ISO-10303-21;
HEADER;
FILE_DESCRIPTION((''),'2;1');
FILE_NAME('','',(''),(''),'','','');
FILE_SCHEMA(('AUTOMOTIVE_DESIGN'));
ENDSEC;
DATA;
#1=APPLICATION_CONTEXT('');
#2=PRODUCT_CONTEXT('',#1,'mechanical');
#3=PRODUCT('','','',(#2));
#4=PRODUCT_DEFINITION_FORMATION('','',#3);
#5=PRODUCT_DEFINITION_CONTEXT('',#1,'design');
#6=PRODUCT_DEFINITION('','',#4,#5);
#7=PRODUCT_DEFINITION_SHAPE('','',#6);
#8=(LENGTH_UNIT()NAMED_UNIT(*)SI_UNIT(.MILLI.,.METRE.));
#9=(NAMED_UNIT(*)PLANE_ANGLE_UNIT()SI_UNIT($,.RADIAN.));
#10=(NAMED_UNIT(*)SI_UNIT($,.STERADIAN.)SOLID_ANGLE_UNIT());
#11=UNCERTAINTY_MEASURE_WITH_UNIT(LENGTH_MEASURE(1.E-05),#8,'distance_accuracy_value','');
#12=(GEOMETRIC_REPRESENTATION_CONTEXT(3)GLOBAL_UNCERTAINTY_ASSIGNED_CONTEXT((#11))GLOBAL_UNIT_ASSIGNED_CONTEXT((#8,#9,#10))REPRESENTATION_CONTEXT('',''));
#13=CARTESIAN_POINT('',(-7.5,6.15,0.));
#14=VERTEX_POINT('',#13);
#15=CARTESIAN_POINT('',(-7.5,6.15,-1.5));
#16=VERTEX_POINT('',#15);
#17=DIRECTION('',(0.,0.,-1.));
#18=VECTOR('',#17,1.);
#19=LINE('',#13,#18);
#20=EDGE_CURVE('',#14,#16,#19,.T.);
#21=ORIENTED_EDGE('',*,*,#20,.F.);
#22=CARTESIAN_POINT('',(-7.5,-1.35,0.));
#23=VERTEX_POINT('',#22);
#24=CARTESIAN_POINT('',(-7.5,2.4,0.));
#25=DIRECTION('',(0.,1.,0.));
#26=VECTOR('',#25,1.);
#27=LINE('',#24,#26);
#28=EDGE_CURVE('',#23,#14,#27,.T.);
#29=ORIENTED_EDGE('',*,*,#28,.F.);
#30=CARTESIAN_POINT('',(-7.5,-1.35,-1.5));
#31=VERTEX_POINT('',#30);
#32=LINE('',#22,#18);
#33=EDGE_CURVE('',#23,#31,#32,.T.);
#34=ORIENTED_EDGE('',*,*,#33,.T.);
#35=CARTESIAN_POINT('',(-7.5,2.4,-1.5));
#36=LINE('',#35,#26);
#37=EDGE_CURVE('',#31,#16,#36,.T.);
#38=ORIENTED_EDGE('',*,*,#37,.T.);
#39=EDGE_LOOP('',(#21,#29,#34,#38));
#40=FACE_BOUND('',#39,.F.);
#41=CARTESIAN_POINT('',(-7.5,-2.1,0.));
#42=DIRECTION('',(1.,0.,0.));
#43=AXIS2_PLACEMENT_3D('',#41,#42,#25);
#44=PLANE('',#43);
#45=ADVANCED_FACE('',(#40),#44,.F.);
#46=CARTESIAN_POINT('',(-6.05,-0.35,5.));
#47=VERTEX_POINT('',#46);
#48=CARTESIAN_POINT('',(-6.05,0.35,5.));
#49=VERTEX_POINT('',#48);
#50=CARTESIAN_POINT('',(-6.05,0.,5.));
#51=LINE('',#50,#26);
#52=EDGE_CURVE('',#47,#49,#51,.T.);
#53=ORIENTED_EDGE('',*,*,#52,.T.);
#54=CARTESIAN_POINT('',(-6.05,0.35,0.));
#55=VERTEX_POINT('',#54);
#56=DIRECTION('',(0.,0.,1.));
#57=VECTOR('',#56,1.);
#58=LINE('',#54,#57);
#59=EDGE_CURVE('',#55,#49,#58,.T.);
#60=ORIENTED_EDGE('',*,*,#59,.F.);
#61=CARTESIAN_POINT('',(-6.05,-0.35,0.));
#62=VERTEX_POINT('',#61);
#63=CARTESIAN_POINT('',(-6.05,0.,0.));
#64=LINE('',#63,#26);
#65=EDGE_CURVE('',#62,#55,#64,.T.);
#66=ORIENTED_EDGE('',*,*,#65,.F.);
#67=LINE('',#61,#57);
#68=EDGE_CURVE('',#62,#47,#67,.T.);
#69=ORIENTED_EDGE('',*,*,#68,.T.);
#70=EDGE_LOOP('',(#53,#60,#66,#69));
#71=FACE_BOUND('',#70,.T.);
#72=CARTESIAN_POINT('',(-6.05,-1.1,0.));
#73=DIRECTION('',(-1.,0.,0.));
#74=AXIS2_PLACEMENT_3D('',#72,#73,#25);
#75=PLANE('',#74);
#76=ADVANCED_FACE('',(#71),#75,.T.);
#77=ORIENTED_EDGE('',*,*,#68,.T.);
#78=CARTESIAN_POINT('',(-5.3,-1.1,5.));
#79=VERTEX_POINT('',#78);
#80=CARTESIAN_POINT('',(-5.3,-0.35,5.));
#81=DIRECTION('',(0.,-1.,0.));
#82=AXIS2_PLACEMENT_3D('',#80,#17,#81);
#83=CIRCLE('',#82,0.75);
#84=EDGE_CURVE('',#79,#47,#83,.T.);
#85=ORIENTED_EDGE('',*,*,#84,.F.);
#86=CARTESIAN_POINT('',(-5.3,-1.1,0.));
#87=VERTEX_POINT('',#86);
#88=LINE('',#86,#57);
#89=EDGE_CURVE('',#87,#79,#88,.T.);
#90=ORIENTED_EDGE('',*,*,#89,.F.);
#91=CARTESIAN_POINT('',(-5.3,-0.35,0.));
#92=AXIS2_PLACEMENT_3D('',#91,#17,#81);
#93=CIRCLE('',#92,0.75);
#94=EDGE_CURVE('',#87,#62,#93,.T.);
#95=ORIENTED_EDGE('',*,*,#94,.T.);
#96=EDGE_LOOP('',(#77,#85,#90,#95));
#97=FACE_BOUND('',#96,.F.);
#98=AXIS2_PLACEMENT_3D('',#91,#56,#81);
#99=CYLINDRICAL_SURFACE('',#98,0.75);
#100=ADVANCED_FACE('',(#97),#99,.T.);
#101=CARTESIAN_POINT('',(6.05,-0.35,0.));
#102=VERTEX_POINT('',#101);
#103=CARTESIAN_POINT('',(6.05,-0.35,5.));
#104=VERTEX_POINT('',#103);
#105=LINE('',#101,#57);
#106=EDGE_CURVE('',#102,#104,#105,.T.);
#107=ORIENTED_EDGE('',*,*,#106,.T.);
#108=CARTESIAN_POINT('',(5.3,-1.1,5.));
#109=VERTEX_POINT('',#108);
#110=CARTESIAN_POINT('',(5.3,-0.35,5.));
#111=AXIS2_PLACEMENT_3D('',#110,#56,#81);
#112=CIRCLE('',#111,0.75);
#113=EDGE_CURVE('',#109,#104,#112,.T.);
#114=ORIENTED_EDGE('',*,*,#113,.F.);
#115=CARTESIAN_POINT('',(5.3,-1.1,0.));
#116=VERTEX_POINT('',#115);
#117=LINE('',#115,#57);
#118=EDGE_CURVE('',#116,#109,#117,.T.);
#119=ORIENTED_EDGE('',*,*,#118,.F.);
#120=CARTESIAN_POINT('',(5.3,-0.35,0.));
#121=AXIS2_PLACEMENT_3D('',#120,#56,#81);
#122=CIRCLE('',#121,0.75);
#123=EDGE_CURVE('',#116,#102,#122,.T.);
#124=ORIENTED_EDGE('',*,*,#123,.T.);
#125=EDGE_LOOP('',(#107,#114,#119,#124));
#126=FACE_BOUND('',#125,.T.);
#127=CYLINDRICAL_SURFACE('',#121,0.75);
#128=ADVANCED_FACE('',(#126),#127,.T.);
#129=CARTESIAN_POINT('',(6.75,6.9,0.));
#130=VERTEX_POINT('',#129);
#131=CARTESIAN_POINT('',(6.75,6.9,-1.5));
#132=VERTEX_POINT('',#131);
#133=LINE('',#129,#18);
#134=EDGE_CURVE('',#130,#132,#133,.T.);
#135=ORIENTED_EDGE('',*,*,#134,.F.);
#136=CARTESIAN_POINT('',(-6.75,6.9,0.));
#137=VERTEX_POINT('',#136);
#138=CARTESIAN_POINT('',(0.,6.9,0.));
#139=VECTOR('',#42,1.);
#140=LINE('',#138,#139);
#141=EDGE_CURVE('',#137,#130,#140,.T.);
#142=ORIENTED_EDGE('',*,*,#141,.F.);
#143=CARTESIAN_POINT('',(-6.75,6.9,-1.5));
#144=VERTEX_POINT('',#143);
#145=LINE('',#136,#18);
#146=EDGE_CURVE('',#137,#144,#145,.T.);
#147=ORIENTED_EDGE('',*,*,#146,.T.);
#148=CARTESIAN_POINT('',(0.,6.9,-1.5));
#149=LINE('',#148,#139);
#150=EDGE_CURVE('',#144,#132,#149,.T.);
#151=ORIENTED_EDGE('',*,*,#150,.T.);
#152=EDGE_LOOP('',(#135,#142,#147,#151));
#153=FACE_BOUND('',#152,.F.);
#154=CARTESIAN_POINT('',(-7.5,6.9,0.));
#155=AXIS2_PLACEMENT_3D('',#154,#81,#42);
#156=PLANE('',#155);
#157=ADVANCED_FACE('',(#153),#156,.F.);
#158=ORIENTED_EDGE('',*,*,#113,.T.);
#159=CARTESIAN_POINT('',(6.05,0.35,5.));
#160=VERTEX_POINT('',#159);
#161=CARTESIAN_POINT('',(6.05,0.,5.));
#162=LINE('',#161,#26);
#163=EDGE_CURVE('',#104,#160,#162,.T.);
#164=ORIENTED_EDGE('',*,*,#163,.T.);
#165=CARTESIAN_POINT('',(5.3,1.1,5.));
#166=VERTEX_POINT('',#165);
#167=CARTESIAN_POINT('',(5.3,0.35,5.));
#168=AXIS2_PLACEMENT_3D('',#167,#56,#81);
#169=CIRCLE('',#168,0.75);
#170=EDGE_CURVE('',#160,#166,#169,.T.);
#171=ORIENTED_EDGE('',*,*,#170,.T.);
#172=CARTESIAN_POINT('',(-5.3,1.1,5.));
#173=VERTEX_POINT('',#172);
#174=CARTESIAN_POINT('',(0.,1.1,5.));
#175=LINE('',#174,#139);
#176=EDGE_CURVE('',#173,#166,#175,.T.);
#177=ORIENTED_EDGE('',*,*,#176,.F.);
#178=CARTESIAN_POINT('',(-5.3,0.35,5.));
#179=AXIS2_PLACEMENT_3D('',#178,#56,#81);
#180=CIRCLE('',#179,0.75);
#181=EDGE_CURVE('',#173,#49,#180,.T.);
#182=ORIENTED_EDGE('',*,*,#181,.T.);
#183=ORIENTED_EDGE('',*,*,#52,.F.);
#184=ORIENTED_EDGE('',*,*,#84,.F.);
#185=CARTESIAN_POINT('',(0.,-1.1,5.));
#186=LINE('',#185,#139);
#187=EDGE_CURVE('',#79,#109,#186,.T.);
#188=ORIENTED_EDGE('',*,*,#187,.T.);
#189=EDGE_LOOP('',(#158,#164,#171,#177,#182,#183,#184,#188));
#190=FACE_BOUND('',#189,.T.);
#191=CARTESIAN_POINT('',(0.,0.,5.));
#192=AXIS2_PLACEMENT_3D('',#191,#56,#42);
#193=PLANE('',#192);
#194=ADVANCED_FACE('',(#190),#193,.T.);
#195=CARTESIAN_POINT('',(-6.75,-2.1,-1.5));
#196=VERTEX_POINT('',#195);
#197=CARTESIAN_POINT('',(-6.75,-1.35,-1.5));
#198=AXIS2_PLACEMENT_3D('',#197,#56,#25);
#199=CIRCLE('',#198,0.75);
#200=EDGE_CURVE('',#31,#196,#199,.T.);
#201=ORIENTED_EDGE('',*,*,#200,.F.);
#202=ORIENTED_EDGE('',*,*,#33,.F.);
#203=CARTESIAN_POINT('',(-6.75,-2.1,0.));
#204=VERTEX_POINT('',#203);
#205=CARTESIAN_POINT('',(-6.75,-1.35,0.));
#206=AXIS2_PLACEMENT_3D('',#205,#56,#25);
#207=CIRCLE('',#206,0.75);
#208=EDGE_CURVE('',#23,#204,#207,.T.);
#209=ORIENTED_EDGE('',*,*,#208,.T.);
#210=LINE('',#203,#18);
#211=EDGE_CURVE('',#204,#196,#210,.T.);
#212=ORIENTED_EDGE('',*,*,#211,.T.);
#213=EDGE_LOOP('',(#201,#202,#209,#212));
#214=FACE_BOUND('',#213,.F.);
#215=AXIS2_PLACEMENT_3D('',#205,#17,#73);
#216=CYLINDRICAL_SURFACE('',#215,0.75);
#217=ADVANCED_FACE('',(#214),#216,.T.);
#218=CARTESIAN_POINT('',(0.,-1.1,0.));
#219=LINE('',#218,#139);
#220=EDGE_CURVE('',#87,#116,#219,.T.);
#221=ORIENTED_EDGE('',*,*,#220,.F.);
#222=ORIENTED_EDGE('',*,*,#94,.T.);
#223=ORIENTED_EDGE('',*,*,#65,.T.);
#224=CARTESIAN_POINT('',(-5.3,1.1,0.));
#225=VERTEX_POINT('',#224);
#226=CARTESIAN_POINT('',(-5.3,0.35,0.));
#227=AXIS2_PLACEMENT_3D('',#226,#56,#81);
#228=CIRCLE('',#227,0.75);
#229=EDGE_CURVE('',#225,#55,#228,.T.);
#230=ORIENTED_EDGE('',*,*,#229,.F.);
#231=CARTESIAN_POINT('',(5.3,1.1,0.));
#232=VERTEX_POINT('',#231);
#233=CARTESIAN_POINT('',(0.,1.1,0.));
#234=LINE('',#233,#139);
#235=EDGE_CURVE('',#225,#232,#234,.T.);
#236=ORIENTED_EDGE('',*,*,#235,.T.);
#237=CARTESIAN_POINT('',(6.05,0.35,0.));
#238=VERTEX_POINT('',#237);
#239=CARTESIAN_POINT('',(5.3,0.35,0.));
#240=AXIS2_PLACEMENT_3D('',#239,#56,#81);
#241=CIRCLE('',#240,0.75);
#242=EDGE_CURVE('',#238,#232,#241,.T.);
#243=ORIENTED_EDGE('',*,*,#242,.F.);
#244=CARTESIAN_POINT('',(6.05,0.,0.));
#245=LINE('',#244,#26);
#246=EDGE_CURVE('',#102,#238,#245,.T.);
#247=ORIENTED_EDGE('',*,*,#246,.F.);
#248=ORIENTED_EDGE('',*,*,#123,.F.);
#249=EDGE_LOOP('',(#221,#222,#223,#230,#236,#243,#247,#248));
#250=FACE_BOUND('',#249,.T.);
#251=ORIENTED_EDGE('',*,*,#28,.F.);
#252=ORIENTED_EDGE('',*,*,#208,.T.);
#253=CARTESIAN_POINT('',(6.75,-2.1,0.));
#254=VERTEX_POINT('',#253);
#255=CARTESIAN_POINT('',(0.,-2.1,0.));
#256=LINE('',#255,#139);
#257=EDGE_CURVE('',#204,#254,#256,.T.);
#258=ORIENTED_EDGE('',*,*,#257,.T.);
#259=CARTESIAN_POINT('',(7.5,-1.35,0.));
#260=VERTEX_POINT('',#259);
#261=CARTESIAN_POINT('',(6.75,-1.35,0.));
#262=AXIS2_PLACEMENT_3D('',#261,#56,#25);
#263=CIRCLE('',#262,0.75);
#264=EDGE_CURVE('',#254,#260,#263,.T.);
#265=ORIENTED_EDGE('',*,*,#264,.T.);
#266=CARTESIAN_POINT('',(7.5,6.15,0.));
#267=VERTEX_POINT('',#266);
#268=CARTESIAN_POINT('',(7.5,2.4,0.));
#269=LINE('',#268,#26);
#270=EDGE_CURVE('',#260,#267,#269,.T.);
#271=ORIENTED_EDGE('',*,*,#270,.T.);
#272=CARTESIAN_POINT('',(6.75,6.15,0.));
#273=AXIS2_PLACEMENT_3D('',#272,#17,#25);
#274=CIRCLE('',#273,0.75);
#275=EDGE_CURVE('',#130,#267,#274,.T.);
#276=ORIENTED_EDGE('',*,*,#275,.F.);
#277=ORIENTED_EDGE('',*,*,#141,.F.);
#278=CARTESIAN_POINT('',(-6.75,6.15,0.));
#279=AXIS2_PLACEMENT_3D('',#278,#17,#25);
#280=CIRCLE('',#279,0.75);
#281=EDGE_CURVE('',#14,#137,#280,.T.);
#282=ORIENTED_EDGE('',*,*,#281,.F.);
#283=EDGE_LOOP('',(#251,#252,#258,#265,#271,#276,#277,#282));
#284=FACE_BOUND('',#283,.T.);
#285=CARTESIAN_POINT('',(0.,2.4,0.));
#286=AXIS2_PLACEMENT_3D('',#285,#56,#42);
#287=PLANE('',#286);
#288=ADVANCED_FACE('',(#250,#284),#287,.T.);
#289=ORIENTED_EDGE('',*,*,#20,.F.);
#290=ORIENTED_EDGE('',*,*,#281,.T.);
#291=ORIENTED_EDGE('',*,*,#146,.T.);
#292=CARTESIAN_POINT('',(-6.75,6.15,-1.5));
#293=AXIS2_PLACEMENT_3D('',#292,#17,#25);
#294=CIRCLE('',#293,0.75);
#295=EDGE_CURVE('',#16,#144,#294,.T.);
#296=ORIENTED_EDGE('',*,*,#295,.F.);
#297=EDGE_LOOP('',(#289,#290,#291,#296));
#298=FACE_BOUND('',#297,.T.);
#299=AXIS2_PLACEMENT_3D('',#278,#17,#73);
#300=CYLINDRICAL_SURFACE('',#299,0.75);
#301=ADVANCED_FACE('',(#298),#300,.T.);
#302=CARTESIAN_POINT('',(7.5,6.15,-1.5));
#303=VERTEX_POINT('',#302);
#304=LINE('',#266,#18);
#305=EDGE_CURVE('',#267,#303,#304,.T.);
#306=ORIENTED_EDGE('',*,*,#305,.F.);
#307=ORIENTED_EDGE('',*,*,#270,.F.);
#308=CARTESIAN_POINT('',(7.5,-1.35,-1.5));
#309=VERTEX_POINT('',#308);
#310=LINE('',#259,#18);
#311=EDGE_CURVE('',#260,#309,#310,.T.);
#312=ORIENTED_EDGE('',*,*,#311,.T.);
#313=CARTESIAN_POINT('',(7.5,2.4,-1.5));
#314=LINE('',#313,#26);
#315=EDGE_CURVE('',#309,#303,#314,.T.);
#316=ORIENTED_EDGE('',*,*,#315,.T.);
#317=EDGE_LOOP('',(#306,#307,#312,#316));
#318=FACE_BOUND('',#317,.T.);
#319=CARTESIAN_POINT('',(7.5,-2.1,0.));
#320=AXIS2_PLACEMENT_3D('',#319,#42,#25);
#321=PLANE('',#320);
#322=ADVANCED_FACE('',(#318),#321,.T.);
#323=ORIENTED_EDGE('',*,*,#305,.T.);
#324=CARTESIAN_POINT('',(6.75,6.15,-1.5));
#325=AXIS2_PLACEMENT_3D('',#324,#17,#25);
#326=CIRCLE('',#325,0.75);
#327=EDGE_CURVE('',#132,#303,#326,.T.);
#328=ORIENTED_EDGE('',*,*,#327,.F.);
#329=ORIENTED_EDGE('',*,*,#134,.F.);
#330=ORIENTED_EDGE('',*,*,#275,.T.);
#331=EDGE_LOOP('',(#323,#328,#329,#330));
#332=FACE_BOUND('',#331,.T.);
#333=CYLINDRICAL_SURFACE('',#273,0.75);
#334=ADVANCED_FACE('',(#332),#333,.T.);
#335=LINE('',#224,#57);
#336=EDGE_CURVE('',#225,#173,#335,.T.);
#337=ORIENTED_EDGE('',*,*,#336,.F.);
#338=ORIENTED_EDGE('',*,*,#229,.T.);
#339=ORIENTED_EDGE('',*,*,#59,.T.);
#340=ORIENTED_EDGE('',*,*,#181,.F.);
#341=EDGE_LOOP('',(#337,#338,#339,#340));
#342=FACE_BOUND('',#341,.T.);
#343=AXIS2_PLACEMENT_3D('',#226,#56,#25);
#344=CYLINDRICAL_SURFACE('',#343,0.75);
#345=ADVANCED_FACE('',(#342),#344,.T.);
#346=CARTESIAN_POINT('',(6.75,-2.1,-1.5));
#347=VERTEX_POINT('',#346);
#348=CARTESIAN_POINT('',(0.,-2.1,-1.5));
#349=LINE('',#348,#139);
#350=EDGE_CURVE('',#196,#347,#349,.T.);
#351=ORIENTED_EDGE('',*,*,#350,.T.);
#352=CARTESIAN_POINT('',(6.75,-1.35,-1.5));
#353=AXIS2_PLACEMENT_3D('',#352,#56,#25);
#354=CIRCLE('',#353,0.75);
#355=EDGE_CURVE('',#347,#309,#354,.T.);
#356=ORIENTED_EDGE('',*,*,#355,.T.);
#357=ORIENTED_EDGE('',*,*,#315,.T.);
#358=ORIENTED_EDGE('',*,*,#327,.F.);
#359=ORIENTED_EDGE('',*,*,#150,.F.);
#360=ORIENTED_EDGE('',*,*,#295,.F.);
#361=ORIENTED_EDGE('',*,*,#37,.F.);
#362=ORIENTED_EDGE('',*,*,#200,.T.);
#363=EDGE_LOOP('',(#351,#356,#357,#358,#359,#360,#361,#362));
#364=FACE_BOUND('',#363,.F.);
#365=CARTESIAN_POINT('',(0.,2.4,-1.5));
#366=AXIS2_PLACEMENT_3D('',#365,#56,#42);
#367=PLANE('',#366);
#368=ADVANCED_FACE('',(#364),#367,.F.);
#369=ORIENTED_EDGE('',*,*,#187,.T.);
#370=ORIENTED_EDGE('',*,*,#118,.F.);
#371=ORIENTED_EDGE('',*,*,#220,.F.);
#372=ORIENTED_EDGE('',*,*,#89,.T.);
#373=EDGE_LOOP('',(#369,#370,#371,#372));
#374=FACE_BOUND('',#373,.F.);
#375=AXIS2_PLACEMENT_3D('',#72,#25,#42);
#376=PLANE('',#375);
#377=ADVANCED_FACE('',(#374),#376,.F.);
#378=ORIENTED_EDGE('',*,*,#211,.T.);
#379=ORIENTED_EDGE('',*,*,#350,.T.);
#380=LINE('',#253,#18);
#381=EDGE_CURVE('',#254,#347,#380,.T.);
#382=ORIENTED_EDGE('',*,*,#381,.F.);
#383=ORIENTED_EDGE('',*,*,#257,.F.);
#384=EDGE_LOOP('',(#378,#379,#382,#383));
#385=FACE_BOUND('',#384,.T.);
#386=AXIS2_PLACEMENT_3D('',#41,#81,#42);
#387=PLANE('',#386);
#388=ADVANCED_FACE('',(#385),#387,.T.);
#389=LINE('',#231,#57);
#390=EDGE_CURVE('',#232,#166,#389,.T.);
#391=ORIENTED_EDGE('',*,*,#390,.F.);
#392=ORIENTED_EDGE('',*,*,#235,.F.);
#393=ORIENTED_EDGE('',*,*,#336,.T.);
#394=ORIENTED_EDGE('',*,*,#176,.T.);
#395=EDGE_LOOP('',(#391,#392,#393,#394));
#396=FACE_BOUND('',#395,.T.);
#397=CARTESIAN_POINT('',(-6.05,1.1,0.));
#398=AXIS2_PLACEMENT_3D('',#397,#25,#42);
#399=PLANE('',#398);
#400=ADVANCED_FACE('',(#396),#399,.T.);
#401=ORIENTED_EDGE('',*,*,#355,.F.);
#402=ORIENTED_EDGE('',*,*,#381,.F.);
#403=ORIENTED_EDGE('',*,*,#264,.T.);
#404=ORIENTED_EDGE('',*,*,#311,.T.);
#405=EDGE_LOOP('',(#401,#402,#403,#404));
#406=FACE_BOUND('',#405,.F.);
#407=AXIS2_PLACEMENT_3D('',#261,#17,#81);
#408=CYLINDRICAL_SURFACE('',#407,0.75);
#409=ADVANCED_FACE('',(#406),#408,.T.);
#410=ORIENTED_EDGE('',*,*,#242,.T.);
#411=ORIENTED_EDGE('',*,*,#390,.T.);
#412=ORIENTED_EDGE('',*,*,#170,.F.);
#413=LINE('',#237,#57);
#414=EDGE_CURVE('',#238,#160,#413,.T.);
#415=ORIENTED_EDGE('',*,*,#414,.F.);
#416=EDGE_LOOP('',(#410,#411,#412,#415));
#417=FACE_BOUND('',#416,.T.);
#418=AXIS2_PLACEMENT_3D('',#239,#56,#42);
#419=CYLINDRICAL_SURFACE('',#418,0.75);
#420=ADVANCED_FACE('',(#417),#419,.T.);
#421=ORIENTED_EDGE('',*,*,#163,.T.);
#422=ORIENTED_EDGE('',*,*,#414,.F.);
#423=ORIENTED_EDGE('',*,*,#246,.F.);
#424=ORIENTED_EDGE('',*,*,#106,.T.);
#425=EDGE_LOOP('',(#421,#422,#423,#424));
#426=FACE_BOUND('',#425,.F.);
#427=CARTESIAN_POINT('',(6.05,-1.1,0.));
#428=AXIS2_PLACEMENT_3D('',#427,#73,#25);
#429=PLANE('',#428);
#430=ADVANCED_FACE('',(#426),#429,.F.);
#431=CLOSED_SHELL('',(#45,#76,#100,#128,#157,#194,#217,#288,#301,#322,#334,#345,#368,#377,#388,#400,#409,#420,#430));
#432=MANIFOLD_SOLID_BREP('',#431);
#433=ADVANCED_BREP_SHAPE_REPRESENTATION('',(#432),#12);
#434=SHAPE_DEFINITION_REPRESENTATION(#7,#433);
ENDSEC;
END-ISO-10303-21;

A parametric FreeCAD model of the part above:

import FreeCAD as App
import Part
import Sketcher


def edges_at(feature, points):
    """Names of the edges that pass closest to the given points."""
    edges = feature.Shape.Edges
    near = lambda p: min(range(len(edges)), key=lambda i: edges[i].distToShape(Part.Vertex(*p))[0])
    return sorted({f"Edge{near(p) + 1}" for p in points})

doc = App.newDocument("Part")
body = doc.addObject("PartDesign::Body", "Body")

# Sketch on XY plane
sketch1 = body.newObject("Sketcher::SketchObject", "Sketch")
sketch1.AttachmentSupport = (doc.getObject("XY_Plane"), [""])
sketch1.MapMode = "FlatFace"
sketch1.addGeometry(Part.LineSegment(App.Vector(-6.05, 1.1, 0), App.Vector(-6.05, -1.1, 0)), False)
sketch1.addGeometry(Part.LineSegment(App.Vector(-6.05, -1.1, 0), App.Vector(6.05, -1.1, 0)), False)
sketch1.addGeometry(Part.LineSegment(App.Vector(6.05, -1.1, 0), App.Vector(6.05, 1.1, 0)), False)
sketch1.addGeometry(Part.LineSegment(App.Vector(6.05, 1.1, 0), App.Vector(-6.05, 1.1, 0)), False)
sketch1.addConstraint(Sketcher.Constraint("Coincident", 0, 2, 1, 1))
sketch1.addConstraint(Sketcher.Constraint("Coincident", 1, 2, 2, 1))
sketch1.addConstraint(Sketcher.Constraint("Coincident", 2, 2, 3, 1))
sketch1.addConstraint(Sketcher.Constraint("Coincident", 3, 2, 0, 1))
sketch1.addConstraint(Sketcher.Constraint("Vertical", 0))
sketch1.addConstraint(Sketcher.Constraint("Horizontal", 1))
sketch1.addConstraint(Sketcher.Constraint("Vertical", 2))
sketch1.addConstraint(Sketcher.Constraint("Horizontal", 3))
sketch1.addConstraint(Sketcher.Constraint("Symmetric", 0, 2, 2, 2, -1, 1))
sketch1.addConstraint(Sketcher.Constraint("DistanceX", 1, 1, 1, 2, 12.1))
sketch1.addConstraint(Sketcher.Constraint("DistanceY", 0, 2, 0, 1, 2.2))
pad1 = body.newObject("PartDesign::Pad", "Pad")
pad1.Profile = sketch1
pad1.Length = 5

# Sketch on XY plane
sketch2 = body.newObject("Sketcher::SketchObject", "Sketch001")
sketch2.AttachmentSupport = (doc.getObject("XY_Plane"), [""])
sketch2.MapMode = "FlatFace"
sketch2.addGeometry(Part.LineSegment(App.Vector(-7.5, 6.9, 0), App.Vector(-7.5, -2.1, 0)), False)
sketch2.addGeometry(Part.LineSegment(App.Vector(-7.5, -2.1, 0), App.Vector(7.5, -2.1, 0)), False)
sketch2.addGeometry(Part.LineSegment(App.Vector(7.5, -2.1, 0), App.Vector(7.5, 6.9, 0)), False)
sketch2.addGeometry(Part.LineSegment(App.Vector(7.5, 6.9, 0), App.Vector(-7.5, 6.9, 0)), False)
sketch2.addConstraint(Sketcher.Constraint("Coincident", 0, 2, 1, 1))
sketch2.addConstraint(Sketcher.Constraint("Coincident", 1, 2, 2, 1))
sketch2.addConstraint(Sketcher.Constraint("Coincident", 2, 2, 3, 1))
sketch2.addConstraint(Sketcher.Constraint("Coincident", 3, 2, 0, 1))
sketch2.addConstraint(Sketcher.Constraint("Vertical", 0))
sketch2.addConstraint(Sketcher.Constraint("Horizontal", 1))
sketch2.addConstraint(Sketcher.Constraint("Vertical", 2))
sketch2.addConstraint(Sketcher.Constraint("Horizontal", 3))
sketch2.addConstraint(Sketcher.Constraint("DistanceX", 1, 1, 1, 2, 15.0))
sketch2.addConstraint(Sketcher.Constraint("DistanceY", 0, 2, 0, 1, 9.0))
sketch2.addConstraint(Sketcher.Constraint("DistanceX", 0, 2, -1, 1, 7.5))
sketch2.addConstraint(Sketcher.Constraint("DistanceY", 0, 2, -1, 1, 2.1))
pad2 = body.newObject("PartDesign::Pad", "Pad001")
pad2.Profile = sketch2
pad2.Length = 1.5
pad2.Reversed = True
doc.recompute()

fillet = body.newObject("PartDesign::Fillet", "Fillet")
fillet.Base = (pad2, edges_at(pad2, [
    (-6.05, 1.1, 2.5),
    (-6.05, -1.1, 2.5),
    (6.05, 1.1, 2.5),
    (6.05, -1.1, 2.5),
    (7.5, -2.1, -0.75),
    (7.5, 6.9, -0.75),
    (-7.5, 6.9, -0.75),
    (-7.5, -2.1, -0.75),
]))
fillet.Radius = 0.75

doc.recompute()
